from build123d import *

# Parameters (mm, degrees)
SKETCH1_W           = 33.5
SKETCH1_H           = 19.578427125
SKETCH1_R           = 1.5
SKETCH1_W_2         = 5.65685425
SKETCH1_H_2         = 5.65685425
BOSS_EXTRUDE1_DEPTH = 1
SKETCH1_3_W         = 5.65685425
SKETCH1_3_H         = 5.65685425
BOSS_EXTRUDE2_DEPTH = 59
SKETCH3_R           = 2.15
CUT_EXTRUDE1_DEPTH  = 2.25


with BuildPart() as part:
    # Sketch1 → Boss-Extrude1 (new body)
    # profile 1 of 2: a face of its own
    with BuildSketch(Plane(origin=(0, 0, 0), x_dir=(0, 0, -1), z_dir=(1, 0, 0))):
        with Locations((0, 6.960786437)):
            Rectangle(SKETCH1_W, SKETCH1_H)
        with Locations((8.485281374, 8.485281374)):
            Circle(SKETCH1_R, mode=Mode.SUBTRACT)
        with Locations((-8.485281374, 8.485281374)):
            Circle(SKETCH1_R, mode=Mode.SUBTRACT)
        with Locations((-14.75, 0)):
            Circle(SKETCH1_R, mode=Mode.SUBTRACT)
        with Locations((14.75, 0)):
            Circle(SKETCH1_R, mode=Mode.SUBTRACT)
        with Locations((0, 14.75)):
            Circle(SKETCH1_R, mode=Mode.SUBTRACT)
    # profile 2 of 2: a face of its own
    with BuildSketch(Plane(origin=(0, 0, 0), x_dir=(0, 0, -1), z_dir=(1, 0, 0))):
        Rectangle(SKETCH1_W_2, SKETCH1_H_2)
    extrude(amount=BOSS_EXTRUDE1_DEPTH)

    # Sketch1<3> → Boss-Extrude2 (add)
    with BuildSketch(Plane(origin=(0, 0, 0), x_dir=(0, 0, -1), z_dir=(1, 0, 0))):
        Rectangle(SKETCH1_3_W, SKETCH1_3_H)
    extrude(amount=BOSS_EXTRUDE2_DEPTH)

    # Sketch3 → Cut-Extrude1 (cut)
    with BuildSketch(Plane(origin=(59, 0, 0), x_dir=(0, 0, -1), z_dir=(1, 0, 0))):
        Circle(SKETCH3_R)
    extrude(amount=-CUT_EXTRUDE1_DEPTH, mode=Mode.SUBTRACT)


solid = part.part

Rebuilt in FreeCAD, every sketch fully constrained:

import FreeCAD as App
import Part
import Sketcher


def add_polygon(sketch, points):
    """Adds a closed chain of lines whose ends are joined by coincident constraints."""
    first, n = sketch.GeometryCount, len(points)
    for a, b in zip(points, points[1:] + points[:1]):
        sketch.addGeometry(Part.LineSegment(App.Vector(*a, 0), App.Vector(*b, 0)), False)
    for i in range(n):
        sketch.addConstraint(Sketcher.Constraint("Coincident", first + i, 2, first + (i + 1) % n, 1))

doc = App.newDocument("Part")
body = doc.addObject("PartDesign::Body", "Body")

sketch1 = body.newObject("Sketcher::SketchObject", "Sketch")
sketch1.AttachmentSupport = (doc.getObject("YZ_Plane"), [""])
sketch1.MapMode = "FlatFace"
add_polygon(sketch1, [(16.8, 16.8), (-2.8, 16.8), (-2.8, 2.8), (-2.8, -2.8), (-2.8, -16.8), (16.8, -16.8)])
sketch1.addGeometry(Part.Circle(App.Vector(0, 14.8, 0), App.Vector(0, 0, 1), 1.5), False)
sketch1.addGeometry(Part.Circle(App.Vector(0, -14.8, 0), App.Vector(0, 0, 1), 1.5), False)
sketch1.addGeometry(Part.Circle(App.Vector(8.5, 8.5, 0), App.Vector(0, 0, 1), 1.5), False)
sketch1.addGeometry(Part.Circle(App.Vector(8.5, -8.5, 0), App.Vector(0, 0, 1), 1.5), False)
sketch1.addGeometry(Part.Circle(App.Vector(14.8, 0, 0), App.Vector(0, 0, 1), 1.5), False)
sketch1.addConstraint(Sketcher.Constraint("Horizontal", 0))
sketch1.addConstraint(Sketcher.Constraint("Vertical", 1))
sketch1.addConstraint(Sketcher.Constraint("Vertical", 2))
sketch1.addConstraint(Sketcher.Constraint("Vertical", 3))
sketch1.addConstraint(Sketcher.Constraint("Horizontal", 4))
sketch1.addConstraint(Sketcher.Constraint("Vertical", 5))
sketch1.addConstraint(Sketcher.Constraint("Equal", 6, 7))
sketch1.addConstraint(Sketcher.Constraint("Equal", 7, 8))
sketch1.addConstraint(Sketcher.Constraint("Equal", 8, 9))
sketch1.addConstraint(Sketcher.Constraint("Equal", 9, 10))
sketch1.addConstraint(Sketcher.Constraint("Symmetric", 6, 3, 7, 3, -1, 1))
sketch1.addConstraint(Sketcher.Constraint("Symmetric", 8, 3, 9, 3, -1))
sketch1.addConstraint(Sketcher.Constraint("PointOnObject", 6, 3, -2))
sketch1.addConstraint(Sketcher.Constraint("PointOnObject", 10, 3, -1))
sketch1.addConstraint(Sketcher.Constraint("Equal", 1, 3))
sketch1.addConstraint(Sketcher.Constraint("Diameter", 6, 3.0))
sketch1.addConstraint(Sketcher.Constraint("DistanceY", 5, 1, 5, 2, 33.5))
sketch1.addConstraint(Sketcher.Constraint("DistanceY", 6, 3, 0, 2, 2.0))
sketch1.addConstraint(Sketcher.Constraint("DistanceY", 3, 2, 7, 3, 2.0))
sketch1.addConstraint(Sketcher.Constraint("DistanceX", 10, 3, 4, 2, 2.0))
sketch1.addConstraint(Sketcher.Constraint("DistanceX", -1, 1, 10, 3, 14.75))
sketch1.addConstraint(Sketcher.Constraint("DistanceX", 0, 2, 0, 1, 19.578427))
sketch1.addConstraint(Sketcher.Constraint("DistanceY", 1, 2, 1, 1, 13.921573))
sketch1.addConstraint(Sketcher.Constraint("DistanceX", -1, 1, 8, 3, 8.485281))
sketch1.addConstraint(Sketcher.Constraint("DistanceY", -1, 1, 8, 3, 8.485281))
pad1 = body.newObject("PartDesign::Pad", "Pad")
pad1.Profile = sketch1
pad1.Length = 1

sketch2 = body.newObject("Sketcher::SketchObject", "Sketch001")
sketch2.AttachmentSupport = (doc.getObject("YZ_Plane"), [""])
sketch2.MapMode = "FlatFace"
add_polygon(sketch2, [(3, 3), (-3, 3), (-3, -3), (3, -3)])
sketch2.addConstraint(Sketcher.Constraint("Horizontal", 0))
sketch2.addConstraint(Sketcher.Constraint("Vertical", 1))
sketch2.addConstraint(Sketcher.Constraint("Horizontal", 2))
sketch2.addConstraint(Sketcher.Constraint("Vertical", 3))
sketch2.addConstraint(Sketcher.Constraint("Symmetric", 0, 2, 2, 2, -1, 1))
sketch2.addConstraint(Sketcher.Constraint("Equal", 2, 1))
sketch2.addConstraint(Sketcher.Constraint("DistanceX", 0, 2, 0, 1, 5.656854))
pad2 = body.newObject("PartDesign::Pad", "Pad001")
pad2.Profile = sketch2
pad2.Length = 59

sketch3 = body.newObject("Sketcher::SketchObject", "Sketch002")
sketch3.AttachmentSupport = (doc.getObject("YZ_Plane"), [""])
sketch3.MapMode = "FlatFace"
sketch3.AttachmentOffset = App.Placement(App.Vector(0, 0, 59), App.Rotation())
sketch3.addGeometry(Part.Circle(App.Vector(0, 0, 0), App.Vector(0, 0, 1), 2.1), False)
sketch3.addConstraint(Sketcher.Constraint("Coincident", 0, 3, -1, 1))
sketch3.addConstraint(Sketcher.Constraint("Diameter", 0, 4.3))
pocket1 = body.newObject("PartDesign::Pocket", "Pocket")
pocket1.Profile = sketch3
pocket1.Length = 2.25

doc.recompute()
